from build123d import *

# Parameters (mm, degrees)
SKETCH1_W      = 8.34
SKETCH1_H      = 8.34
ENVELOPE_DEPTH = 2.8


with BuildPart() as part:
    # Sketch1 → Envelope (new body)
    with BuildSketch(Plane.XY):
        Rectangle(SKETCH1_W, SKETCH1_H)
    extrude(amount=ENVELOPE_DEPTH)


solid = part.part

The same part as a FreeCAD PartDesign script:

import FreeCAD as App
import Part
import Sketcher

V = App.Vector
Q = App.Units.Quantity


def add_polygon(sketch, points):
    """Adds a closed chain of lines whose ends are joined by coincident constraints."""
    first, n = sketch.GeometryCount, len(points)
    for a, b in zip(points, points[1:] + points[:1]):
        sketch.addGeometry(Part.LineSegment(App.Vector(*a, 0), App.Vector(*b, 0)), False)
    for i in range(n):
        sketch.addConstraint(Sketcher.Constraint("Coincident", first + i, 2, first + (i + 1) % n, 1))

doc = App.newDocument("Part")
params = doc.addObject("Spreadsheet::Sheet", "Params")
for row, (alias, value) in enumerate([
    ("sketch1_width", "8.34 mm"),
    ("pad1_length", "2.8 mm"),
], start=1):
    params.set(f"A{row}", alias)
    params.set(f"B{row}", "=" + value)
    params.setAlias(f"B{row}", alias)

body = doc.addObject("PartDesign::Body", "Body")

# Sketch on XY plane
sketch1 = body.newObject("Sketcher::SketchObject", "Sketch")
sketch1.AttachmentSupport = (doc.getObject("XY_Plane"), [""])
sketch1.MapMode = "FlatFace"
add_polygon(sketch1, [(-4, 4), (-4, -4), (4, -4), (4, 4)])  # lines 0-3
sketch1.addConstraint([
    Sketcher.Constraint("Vertical", 0),
    Sketcher.Constraint("Horizontal", 1),
    Sketcher.Constraint("Vertical", 2),
    Sketcher.Constraint("Horizontal", 3),
    Sketcher.Constraint("Symmetric", 0, 2, 2, 2, -1, 1),
    Sketcher.Constraint("Equal", 3, 0),
    Sketcher.Constraint("DistanceX", 1, 1, 1, 2, Q("8.34 mm")),
])
sketch1.setExpression("Constraints[10]", "Params.sketch1_width")
pad1 = body.newObject("PartDesign::Pad", "Pad")
pad1.Profile = sketch1
pad1.setExpression("Length", "Params.pad1_length")

doc.recompute()
